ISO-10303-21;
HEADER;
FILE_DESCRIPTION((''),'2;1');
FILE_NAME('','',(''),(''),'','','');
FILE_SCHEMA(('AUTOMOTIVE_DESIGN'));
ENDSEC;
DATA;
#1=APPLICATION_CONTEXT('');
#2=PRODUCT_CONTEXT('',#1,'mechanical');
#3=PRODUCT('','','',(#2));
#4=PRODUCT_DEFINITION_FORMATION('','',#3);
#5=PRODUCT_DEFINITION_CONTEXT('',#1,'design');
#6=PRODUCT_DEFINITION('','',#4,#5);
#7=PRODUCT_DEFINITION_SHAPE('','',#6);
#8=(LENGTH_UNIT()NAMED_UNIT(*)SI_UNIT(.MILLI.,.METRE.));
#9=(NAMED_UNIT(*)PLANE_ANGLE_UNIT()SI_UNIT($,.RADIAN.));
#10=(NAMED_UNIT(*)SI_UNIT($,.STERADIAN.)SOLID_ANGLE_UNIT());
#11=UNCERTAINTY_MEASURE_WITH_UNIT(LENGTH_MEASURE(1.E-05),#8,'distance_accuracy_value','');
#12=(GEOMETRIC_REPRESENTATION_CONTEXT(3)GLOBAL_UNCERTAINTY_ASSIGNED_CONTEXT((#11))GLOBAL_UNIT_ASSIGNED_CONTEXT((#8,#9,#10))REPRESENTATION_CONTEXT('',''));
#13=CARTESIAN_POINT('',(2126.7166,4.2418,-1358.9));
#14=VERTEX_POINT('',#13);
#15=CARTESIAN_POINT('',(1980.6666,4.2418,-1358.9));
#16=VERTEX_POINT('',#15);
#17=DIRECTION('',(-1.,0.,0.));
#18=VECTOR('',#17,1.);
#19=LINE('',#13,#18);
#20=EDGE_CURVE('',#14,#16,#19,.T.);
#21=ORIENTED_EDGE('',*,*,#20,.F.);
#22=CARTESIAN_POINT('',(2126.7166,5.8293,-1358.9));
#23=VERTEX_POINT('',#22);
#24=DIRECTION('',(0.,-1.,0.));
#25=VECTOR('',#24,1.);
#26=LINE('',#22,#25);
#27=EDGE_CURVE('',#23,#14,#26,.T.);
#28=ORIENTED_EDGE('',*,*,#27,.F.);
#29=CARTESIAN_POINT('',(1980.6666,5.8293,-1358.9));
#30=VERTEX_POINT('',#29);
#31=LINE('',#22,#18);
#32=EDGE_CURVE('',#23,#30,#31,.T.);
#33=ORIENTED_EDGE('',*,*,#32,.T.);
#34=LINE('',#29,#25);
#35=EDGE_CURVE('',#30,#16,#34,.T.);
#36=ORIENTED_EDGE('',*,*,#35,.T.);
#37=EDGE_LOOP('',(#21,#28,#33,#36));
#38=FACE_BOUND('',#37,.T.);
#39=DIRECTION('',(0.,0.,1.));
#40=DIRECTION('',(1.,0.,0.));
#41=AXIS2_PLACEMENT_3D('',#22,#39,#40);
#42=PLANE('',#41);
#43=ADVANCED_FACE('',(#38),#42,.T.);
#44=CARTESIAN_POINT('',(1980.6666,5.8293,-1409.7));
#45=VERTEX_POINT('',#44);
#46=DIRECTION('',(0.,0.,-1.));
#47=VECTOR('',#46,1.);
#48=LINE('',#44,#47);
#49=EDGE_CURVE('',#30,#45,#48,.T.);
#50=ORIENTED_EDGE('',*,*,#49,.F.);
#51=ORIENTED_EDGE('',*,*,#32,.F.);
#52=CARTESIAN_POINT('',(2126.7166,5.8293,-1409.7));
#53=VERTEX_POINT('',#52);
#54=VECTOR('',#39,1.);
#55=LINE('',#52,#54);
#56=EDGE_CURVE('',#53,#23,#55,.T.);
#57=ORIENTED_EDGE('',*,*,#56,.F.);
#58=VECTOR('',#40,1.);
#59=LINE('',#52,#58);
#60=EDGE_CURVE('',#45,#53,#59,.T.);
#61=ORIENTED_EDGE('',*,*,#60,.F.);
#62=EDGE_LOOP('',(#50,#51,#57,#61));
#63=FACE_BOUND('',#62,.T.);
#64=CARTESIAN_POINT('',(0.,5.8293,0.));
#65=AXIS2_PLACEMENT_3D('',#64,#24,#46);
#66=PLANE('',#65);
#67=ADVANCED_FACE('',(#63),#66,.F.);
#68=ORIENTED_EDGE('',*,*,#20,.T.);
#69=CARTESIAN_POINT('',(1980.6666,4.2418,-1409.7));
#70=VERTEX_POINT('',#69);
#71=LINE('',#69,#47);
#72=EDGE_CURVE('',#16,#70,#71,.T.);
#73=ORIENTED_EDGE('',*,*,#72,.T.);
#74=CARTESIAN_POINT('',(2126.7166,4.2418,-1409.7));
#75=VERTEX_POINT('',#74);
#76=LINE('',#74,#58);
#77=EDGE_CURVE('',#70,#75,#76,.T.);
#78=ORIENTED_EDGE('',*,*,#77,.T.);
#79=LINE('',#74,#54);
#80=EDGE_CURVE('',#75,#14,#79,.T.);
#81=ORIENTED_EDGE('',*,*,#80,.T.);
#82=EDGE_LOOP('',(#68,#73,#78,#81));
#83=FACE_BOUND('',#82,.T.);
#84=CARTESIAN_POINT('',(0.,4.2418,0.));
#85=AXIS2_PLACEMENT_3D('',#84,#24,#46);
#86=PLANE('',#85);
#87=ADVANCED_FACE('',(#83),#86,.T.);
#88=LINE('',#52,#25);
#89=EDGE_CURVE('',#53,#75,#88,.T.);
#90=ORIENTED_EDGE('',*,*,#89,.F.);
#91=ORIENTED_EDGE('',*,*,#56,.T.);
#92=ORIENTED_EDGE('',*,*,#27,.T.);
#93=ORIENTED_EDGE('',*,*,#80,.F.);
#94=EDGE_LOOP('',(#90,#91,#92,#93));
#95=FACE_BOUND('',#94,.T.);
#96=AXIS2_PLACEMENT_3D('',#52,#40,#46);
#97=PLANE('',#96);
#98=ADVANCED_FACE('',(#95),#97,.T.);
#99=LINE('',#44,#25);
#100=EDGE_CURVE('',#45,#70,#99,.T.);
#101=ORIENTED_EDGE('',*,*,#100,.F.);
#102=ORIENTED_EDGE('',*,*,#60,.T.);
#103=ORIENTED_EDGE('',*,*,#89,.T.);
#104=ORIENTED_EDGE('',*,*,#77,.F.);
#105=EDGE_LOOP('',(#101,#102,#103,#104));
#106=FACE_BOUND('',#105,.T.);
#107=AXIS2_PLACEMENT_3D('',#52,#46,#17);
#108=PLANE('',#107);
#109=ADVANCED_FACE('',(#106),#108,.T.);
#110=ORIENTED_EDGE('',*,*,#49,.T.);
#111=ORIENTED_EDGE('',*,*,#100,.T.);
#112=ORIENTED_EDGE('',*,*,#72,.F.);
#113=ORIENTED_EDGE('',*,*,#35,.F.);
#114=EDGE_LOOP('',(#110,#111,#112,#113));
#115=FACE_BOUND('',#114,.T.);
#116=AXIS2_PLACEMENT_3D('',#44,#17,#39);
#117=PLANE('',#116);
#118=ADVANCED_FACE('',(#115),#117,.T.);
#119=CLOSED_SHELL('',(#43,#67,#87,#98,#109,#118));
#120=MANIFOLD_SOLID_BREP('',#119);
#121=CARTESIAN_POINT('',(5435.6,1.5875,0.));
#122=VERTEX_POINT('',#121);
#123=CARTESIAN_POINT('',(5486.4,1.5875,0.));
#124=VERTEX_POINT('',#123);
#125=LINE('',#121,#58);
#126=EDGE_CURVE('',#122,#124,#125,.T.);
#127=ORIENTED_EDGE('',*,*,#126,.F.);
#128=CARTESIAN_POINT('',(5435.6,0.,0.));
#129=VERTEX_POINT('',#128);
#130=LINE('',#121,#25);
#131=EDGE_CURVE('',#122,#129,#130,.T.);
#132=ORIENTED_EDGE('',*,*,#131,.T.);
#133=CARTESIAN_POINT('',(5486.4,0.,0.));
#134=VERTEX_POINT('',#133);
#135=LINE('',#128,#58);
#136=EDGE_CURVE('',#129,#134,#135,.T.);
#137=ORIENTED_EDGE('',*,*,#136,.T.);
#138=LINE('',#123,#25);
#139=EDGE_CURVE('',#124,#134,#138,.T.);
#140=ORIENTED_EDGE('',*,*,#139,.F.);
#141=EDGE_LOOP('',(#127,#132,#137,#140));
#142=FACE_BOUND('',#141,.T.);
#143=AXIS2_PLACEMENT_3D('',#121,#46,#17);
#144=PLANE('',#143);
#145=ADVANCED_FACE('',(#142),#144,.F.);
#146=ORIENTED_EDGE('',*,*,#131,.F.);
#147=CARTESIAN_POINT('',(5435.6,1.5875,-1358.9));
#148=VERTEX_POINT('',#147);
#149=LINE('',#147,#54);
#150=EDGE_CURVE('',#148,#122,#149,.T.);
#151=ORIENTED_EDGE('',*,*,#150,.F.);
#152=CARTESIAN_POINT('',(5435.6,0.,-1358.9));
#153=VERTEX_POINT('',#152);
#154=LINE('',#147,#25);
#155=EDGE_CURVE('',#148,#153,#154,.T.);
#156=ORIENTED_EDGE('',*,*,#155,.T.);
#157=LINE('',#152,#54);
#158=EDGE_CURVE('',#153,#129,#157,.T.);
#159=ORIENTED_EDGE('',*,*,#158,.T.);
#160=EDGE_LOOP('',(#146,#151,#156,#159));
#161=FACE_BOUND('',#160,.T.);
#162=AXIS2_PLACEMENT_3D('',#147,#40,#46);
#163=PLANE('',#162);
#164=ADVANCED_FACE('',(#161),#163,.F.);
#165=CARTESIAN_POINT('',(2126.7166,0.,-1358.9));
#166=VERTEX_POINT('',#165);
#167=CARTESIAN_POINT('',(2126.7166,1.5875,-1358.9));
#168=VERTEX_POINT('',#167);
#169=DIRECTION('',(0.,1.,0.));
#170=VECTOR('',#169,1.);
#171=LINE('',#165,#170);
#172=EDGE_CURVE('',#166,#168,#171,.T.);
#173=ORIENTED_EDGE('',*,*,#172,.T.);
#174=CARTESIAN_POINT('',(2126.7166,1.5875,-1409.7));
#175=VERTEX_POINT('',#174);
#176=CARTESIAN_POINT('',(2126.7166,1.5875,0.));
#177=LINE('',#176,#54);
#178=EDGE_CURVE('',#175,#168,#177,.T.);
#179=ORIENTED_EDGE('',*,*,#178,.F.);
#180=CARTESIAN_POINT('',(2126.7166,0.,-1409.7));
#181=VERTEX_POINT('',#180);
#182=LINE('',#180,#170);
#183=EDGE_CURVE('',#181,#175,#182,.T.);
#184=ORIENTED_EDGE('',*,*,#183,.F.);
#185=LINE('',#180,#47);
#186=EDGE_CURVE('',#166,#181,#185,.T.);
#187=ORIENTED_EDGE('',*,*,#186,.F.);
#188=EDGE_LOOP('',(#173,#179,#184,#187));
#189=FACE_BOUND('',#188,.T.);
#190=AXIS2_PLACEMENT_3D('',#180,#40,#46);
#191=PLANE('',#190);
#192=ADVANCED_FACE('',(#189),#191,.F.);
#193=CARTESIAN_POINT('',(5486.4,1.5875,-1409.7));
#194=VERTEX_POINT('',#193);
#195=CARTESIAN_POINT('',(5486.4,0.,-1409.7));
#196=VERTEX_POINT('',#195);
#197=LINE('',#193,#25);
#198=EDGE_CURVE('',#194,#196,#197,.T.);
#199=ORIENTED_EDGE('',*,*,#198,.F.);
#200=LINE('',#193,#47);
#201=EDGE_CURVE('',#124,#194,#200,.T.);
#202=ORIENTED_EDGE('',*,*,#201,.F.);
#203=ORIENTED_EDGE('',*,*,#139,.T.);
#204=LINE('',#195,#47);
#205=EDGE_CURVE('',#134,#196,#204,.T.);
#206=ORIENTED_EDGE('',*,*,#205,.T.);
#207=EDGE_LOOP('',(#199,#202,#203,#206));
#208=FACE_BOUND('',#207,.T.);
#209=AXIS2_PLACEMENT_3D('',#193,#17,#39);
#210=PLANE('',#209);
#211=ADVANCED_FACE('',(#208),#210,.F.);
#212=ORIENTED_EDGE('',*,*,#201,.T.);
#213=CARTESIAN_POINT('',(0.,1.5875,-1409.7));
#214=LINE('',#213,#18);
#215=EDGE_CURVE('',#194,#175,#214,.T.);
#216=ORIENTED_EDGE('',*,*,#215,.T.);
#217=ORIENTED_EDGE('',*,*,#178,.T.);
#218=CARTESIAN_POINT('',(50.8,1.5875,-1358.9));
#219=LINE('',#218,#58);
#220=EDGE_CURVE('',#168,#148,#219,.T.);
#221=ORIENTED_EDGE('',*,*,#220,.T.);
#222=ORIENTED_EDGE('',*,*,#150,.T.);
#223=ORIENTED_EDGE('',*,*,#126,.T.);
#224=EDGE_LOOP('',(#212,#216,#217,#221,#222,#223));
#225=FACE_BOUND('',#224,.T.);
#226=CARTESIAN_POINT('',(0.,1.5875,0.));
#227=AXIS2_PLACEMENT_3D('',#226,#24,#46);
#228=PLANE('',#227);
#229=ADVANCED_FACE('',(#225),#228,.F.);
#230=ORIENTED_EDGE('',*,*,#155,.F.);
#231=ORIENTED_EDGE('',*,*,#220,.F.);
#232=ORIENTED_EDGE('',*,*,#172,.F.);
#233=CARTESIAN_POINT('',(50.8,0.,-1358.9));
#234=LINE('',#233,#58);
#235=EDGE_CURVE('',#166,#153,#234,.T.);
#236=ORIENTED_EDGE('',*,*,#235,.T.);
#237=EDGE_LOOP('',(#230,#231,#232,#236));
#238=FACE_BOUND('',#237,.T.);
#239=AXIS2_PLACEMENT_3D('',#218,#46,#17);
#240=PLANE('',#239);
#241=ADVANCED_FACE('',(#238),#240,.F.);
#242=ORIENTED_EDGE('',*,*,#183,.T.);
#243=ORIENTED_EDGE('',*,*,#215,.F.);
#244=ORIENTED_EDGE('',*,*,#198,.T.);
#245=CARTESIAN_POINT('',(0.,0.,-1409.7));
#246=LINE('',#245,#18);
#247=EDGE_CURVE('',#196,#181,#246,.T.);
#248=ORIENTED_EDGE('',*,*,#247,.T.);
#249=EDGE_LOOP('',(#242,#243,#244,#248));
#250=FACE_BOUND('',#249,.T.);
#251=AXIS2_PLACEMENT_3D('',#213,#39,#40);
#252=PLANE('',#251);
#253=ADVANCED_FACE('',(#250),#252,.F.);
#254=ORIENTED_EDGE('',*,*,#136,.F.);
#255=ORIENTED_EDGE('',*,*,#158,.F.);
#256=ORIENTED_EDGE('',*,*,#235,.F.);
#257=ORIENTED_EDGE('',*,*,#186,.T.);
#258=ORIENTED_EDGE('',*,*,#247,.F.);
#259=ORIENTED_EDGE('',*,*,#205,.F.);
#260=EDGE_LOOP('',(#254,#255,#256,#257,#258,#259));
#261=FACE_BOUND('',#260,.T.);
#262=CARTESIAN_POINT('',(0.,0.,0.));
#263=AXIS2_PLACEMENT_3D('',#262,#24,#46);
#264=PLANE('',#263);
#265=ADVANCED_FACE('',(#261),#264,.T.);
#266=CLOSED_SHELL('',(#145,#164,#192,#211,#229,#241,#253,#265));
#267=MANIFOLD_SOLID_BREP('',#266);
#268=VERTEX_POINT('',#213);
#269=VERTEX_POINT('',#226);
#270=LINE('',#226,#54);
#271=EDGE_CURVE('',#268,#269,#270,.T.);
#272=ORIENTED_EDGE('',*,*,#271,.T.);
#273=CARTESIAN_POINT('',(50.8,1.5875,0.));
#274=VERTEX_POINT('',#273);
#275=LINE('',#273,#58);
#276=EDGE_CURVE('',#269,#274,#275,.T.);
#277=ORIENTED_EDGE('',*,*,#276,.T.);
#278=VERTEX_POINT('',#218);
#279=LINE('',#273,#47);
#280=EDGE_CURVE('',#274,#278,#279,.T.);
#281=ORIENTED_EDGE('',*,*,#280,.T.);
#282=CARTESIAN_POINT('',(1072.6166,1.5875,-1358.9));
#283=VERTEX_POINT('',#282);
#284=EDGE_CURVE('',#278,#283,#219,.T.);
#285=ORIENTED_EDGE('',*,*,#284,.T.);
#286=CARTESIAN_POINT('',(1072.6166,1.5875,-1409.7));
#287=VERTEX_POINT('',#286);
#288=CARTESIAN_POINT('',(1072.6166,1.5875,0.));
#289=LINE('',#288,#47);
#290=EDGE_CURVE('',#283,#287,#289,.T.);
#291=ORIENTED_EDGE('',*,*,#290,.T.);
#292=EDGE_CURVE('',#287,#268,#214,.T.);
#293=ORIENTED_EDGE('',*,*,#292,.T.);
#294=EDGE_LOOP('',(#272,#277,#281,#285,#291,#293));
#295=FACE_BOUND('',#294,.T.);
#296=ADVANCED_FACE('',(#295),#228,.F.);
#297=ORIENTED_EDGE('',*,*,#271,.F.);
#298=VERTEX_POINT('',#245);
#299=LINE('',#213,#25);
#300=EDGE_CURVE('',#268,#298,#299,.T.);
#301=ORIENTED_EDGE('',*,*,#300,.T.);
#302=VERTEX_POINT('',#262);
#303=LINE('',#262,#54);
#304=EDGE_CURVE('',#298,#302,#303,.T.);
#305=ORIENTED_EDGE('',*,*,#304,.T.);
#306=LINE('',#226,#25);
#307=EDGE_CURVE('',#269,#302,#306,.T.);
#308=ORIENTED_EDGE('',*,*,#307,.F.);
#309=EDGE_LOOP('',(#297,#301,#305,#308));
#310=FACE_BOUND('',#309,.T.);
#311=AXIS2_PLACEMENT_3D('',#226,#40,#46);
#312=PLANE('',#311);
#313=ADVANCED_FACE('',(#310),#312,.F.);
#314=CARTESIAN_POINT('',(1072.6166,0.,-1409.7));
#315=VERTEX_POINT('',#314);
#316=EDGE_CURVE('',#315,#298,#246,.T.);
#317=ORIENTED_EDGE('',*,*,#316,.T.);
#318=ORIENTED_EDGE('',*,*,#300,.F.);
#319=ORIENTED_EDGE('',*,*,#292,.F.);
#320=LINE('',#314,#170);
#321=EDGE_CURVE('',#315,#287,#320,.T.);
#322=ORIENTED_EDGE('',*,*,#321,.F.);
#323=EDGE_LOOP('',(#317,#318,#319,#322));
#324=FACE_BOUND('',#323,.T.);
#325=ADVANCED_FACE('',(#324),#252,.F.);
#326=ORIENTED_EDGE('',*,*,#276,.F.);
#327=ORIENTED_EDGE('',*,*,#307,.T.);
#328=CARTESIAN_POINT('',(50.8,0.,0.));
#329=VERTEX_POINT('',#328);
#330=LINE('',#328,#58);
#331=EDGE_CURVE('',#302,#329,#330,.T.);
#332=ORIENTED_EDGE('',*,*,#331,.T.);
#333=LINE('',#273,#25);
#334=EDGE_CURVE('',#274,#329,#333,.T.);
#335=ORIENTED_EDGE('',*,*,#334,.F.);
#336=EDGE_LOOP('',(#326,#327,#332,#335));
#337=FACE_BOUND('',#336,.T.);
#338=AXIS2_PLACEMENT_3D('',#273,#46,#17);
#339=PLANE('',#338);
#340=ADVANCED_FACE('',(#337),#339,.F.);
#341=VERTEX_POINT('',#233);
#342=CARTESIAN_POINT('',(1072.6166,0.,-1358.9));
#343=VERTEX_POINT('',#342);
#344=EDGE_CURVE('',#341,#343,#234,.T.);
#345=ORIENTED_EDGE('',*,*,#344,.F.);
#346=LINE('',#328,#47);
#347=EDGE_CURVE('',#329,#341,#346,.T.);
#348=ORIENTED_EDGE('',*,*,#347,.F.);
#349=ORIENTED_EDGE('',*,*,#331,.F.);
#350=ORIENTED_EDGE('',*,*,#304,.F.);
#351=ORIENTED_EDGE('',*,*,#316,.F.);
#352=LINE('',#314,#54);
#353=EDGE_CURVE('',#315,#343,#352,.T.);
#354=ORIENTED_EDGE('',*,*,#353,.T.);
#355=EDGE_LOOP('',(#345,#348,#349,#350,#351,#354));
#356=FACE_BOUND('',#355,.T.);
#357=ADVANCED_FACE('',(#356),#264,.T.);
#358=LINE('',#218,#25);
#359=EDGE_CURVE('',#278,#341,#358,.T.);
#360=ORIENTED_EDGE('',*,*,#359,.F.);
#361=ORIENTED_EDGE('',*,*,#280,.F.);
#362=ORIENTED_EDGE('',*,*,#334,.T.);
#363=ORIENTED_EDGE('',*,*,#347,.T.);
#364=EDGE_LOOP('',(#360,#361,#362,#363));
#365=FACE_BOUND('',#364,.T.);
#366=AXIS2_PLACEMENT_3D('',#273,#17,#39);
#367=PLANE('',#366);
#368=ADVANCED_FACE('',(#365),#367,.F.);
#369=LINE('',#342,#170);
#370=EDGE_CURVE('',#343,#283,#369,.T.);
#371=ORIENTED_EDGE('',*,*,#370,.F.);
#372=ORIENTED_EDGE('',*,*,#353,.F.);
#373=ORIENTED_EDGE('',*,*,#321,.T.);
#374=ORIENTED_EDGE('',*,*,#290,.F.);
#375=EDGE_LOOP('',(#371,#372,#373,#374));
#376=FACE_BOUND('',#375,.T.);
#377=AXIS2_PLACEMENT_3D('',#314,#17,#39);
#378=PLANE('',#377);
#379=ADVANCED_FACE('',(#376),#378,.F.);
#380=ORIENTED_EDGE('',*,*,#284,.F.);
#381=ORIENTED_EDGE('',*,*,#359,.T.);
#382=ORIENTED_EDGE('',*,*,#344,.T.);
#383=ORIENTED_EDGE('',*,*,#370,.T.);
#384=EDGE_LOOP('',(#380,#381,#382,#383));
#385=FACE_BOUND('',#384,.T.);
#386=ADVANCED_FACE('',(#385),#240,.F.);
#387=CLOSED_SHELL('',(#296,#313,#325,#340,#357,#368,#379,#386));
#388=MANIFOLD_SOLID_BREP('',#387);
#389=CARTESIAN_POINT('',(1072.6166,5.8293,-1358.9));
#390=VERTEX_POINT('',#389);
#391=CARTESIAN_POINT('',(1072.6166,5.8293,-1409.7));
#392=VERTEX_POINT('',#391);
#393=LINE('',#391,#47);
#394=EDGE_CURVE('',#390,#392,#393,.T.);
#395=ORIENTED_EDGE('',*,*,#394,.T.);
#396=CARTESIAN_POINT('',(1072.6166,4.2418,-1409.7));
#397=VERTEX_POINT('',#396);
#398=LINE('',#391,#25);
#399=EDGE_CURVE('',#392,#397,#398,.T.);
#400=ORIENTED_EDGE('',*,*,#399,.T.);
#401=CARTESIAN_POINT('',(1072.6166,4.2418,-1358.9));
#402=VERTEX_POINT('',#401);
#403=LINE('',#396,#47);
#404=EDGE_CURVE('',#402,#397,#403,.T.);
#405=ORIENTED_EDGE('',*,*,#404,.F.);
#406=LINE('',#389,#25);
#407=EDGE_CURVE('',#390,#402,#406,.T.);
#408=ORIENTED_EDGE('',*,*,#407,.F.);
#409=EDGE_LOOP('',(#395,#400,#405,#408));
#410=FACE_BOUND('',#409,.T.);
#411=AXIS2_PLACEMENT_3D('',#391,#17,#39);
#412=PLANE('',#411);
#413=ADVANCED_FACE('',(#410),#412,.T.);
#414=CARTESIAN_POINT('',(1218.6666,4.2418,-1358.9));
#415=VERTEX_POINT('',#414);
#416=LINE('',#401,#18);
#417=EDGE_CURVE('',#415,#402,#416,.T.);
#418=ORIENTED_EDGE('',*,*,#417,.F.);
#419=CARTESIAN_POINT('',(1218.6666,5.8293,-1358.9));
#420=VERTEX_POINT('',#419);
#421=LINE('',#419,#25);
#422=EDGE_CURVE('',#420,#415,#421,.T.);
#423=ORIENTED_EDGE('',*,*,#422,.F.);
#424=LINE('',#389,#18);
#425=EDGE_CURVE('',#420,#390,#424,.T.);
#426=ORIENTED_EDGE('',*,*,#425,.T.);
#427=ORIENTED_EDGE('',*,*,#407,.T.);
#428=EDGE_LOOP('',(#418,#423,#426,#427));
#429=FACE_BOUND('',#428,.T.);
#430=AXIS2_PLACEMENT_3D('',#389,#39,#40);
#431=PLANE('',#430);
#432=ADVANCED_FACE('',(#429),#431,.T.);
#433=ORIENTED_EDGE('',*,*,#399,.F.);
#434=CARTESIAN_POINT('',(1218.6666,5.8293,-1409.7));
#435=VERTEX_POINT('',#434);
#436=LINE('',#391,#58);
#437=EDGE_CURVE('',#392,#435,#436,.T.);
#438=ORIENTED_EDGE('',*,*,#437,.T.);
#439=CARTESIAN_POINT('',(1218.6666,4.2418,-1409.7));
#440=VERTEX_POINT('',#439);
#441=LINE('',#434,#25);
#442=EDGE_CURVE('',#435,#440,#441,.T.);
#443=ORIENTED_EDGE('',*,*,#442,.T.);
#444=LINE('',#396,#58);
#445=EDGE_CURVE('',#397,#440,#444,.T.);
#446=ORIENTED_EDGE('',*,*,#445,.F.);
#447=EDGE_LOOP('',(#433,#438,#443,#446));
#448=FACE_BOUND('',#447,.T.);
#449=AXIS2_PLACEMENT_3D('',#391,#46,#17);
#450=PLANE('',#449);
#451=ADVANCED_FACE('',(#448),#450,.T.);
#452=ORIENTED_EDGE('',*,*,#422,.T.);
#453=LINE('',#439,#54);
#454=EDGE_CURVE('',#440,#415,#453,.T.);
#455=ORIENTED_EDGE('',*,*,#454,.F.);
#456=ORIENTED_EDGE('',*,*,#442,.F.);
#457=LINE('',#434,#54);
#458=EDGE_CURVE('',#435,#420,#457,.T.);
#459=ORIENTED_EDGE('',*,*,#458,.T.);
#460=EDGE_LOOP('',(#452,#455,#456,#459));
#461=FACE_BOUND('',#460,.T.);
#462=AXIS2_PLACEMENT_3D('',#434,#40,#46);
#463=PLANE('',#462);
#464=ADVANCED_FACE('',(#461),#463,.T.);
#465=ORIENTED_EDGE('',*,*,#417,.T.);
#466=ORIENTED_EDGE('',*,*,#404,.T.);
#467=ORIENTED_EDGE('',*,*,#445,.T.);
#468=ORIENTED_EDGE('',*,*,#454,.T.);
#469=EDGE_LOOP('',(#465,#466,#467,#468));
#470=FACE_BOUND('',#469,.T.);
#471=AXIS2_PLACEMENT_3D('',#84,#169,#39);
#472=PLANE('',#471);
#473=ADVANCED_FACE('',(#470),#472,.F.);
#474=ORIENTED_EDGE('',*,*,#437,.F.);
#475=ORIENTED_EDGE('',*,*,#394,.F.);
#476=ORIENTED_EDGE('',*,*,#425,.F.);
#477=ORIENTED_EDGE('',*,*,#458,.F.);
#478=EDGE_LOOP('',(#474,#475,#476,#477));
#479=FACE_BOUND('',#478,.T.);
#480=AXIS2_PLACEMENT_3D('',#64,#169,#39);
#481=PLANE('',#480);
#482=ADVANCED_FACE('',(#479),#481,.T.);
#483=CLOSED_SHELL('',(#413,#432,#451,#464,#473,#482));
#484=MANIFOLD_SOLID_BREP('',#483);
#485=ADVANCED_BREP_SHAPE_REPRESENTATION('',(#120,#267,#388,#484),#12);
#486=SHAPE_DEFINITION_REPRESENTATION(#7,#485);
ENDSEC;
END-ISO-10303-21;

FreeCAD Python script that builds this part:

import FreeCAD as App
import Part
import Sketcher

V = App.Vector
Q = App.Units.Quantity


def add_polygon(sketch, points):
    """Adds a closed chain of lines whose ends are joined by coincident constraints."""
    first, n = sketch.GeometryCount, len(points)
    for a, b in zip(points, points[1:] + points[:1]):
        sketch.addGeometry(Part.LineSegment(App.Vector(*a, 0), App.Vector(*b, 0)), False)
    for i in range(n):
        sketch.addConstraint(Sketcher.Constraint("Coincident", first + i, 2, first + (i + 1) % n, 1))

doc = App.newDocument("Part")
body = doc.addObject("PartDesign::Body", "Body")
body.AllowCompound = True

sketch1 = doc.addObject("Sketcher::SketchObject", "Sketch")
body.addObject(sketch1)
sketch1.AttachmentSupport = (doc.XZ_Plane, [""])
sketch1.MapMode = "FlatFace"
add_polygon(sketch1, [(0, -1410), (0, 0), (51, 0), (51, -1359), (5436, -1359), (5436, 0), (5486, 0), (5486, -1410)])
sketch1.addConstraint([
    Sketcher.Constraint("Vertical", 0),
    Sketcher.Constraint("Horizontal", 1),
    Sketcher.Constraint("Vertical", 2),
    Sketcher.Constraint("Horizontal", 3),
    Sketcher.Constraint("Vertical", 4),
    Sketcher.Constraint("Horizontal", 5),
    Sketcher.Constraint("Vertical", 6),
    Sketcher.Constraint("Horizontal", 7),
    Sketcher.Constraint("Coincident", 0, 2, -1, 1),
    Sketcher.Constraint("PointOnObject", 4, 2, -1),
    Sketcher.Constraint("Equal", 1, 5),
    Sketcher.Constraint("DistanceX", 1, 1, 1, 2, Q("2 in")),
    Sketcher.Constraint("DistanceX", 3, 1, 3, 2, Q("212 in")),
    Sketcher.Constraint("DistanceY", 0, 1, 0, 2, Q("55.5 in")),
    Sketcher.Constraint("DistanceY", 2, 2, 2, 1, Q("53.5 in")),
])
pad1 = doc.addObject("PartDesign::Pad", "Pad")
body.addObject(pad1)
pad1.Profile = sketch1
pad1.Length = Q("0.0625 in")
pad1.Reversed = True

sketch2 = doc.addObject("Sketcher::SketchObject", "Sketch001")
body.addObject(sketch2)
sketch2.AttachmentSupport = (doc.XZ_Plane, [""])
sketch2.MapMode = "FlatFace"
sketch2.AttachmentOffset = App.Placement(V(0, 0, -0.0625 * 25.4), App.Rotation())
add_polygon(sketch2, [(1073, -1410), (1073, -1359), (2127, -1359), (2127, -1410)])
sketch2.addConstraint([
    Sketcher.Constraint("Vertical", 0),
    Sketcher.Constraint("Horizontal", 1),
    Sketcher.Constraint("Vertical", 2),
    Sketcher.Constraint("Horizontal", 3),
    Sketcher.Constraint("DistanceY", 0, 1, 0, 2, Q("2 in")),
    Sketcher.Constraint("DistanceX", 1, 1, 1, 2, Q("41.5 in")),
    Sketcher.Constraint("DistanceY", 0, 2, -1, 1, Q("53.5 in")),
    Sketcher.Constraint("DistanceX", -1, 1, 0, 2, Q("42.229 in")),
])
pocket1 = doc.addObject("PartDesign::Pocket", "Pocket")
body.addObject(pocket1)
pocket1.Profile = sketch2
pocket1.Type = "ThroughAll"
pocket1.Midplane = True
body2 = doc.addObject("PartDesign::Body", "Body001")

sketch3 = doc.addObject("Sketcher::SketchObject", "Sketch002")
body2.addObject(sketch3)
sketch3.AttachmentSupport = (doc.getObject("XZ_Plane001"), [""])
sketch3.MapMode = "FlatFace"
sketch3.AttachmentOffset = App.Placement(V(0, 0, -0.167 * 25.4), App.Rotation())
add_polygon(sketch3, [(1219, -1410), (1219, -1359), (1073, -1359), (1073, -1410)])
sketch3.addConstraint([
    Sketcher.Constraint("Vertical", 0),
    Sketcher.Constraint("Horizontal", 1),
    Sketcher.Constraint("Vertical", 2),
    Sketcher.Constraint("Horizontal", 3),
    Sketcher.Constraint("DistanceY", 0, 1, 0, 2, Q("2 in")),
    Sketcher.Constraint("DistanceX", 1, 2, 1, 1, Q("5.75 in")),
    Sketcher.Constraint("DistanceY", 0, 2, -1, 1, Q("53.5 in")),
    Sketcher.Constraint("DistanceX", -1, 1, 0, 2, Q("47.979 in")),
])
pad2 = doc.addObject("PartDesign::Pad", "Pad001")
body2.addObject(pad2)
pad2.Profile = sketch3
pad2.Length = Q("0.0625 in")
pad2.Reversed = True
body3 = doc.addObject("PartDesign::Body", "Body002")

sketch4 = doc.addObject("Sketcher::SketchObject", "Sketch003")
body3.addObject(sketch4)
sketch4.AttachmentSupport = (doc.getObject("XZ_Plane002"), [""])
sketch4.MapMode = "FlatFace"
sketch4.AttachmentOffset = App.Placement(V(0, 0, -0.167 * 25.4), App.Rotation())
add_polygon(sketch4, [(2127, -1410), (2127, -1359), (1981, -1359), (1981, -1410)])
sketch4.addConstraint([
    Sketcher.Constraint("Vertical", 0),
    Sketcher.Constraint("Horizontal", 1),
    Sketcher.Constraint("Vertical", 2),
    Sketcher.Constraint("Horizontal", 3),
    Sketcher.Constraint("DistanceY", 0, 1, 0, 2, Q("2 in")),
    Sketcher.Constraint("DistanceX", 1, 2, 1, 1, Q("5.75 in")),
    Sketcher.Constraint("DistanceY", 0, 2, -1, 1, Q("53.5 in")),
    Sketcher.Constraint("DistanceX", -1, 1, 0, 2, Q("83.729 in")),
])
pad3 = doc.addObject("PartDesign::Pad", "Pad002")
body3.addObject(pad3)
pad3.Profile = sketch4
pad3.Length = Q("0.0625 in")
pad3.Reversed = True

doc.recompute()
